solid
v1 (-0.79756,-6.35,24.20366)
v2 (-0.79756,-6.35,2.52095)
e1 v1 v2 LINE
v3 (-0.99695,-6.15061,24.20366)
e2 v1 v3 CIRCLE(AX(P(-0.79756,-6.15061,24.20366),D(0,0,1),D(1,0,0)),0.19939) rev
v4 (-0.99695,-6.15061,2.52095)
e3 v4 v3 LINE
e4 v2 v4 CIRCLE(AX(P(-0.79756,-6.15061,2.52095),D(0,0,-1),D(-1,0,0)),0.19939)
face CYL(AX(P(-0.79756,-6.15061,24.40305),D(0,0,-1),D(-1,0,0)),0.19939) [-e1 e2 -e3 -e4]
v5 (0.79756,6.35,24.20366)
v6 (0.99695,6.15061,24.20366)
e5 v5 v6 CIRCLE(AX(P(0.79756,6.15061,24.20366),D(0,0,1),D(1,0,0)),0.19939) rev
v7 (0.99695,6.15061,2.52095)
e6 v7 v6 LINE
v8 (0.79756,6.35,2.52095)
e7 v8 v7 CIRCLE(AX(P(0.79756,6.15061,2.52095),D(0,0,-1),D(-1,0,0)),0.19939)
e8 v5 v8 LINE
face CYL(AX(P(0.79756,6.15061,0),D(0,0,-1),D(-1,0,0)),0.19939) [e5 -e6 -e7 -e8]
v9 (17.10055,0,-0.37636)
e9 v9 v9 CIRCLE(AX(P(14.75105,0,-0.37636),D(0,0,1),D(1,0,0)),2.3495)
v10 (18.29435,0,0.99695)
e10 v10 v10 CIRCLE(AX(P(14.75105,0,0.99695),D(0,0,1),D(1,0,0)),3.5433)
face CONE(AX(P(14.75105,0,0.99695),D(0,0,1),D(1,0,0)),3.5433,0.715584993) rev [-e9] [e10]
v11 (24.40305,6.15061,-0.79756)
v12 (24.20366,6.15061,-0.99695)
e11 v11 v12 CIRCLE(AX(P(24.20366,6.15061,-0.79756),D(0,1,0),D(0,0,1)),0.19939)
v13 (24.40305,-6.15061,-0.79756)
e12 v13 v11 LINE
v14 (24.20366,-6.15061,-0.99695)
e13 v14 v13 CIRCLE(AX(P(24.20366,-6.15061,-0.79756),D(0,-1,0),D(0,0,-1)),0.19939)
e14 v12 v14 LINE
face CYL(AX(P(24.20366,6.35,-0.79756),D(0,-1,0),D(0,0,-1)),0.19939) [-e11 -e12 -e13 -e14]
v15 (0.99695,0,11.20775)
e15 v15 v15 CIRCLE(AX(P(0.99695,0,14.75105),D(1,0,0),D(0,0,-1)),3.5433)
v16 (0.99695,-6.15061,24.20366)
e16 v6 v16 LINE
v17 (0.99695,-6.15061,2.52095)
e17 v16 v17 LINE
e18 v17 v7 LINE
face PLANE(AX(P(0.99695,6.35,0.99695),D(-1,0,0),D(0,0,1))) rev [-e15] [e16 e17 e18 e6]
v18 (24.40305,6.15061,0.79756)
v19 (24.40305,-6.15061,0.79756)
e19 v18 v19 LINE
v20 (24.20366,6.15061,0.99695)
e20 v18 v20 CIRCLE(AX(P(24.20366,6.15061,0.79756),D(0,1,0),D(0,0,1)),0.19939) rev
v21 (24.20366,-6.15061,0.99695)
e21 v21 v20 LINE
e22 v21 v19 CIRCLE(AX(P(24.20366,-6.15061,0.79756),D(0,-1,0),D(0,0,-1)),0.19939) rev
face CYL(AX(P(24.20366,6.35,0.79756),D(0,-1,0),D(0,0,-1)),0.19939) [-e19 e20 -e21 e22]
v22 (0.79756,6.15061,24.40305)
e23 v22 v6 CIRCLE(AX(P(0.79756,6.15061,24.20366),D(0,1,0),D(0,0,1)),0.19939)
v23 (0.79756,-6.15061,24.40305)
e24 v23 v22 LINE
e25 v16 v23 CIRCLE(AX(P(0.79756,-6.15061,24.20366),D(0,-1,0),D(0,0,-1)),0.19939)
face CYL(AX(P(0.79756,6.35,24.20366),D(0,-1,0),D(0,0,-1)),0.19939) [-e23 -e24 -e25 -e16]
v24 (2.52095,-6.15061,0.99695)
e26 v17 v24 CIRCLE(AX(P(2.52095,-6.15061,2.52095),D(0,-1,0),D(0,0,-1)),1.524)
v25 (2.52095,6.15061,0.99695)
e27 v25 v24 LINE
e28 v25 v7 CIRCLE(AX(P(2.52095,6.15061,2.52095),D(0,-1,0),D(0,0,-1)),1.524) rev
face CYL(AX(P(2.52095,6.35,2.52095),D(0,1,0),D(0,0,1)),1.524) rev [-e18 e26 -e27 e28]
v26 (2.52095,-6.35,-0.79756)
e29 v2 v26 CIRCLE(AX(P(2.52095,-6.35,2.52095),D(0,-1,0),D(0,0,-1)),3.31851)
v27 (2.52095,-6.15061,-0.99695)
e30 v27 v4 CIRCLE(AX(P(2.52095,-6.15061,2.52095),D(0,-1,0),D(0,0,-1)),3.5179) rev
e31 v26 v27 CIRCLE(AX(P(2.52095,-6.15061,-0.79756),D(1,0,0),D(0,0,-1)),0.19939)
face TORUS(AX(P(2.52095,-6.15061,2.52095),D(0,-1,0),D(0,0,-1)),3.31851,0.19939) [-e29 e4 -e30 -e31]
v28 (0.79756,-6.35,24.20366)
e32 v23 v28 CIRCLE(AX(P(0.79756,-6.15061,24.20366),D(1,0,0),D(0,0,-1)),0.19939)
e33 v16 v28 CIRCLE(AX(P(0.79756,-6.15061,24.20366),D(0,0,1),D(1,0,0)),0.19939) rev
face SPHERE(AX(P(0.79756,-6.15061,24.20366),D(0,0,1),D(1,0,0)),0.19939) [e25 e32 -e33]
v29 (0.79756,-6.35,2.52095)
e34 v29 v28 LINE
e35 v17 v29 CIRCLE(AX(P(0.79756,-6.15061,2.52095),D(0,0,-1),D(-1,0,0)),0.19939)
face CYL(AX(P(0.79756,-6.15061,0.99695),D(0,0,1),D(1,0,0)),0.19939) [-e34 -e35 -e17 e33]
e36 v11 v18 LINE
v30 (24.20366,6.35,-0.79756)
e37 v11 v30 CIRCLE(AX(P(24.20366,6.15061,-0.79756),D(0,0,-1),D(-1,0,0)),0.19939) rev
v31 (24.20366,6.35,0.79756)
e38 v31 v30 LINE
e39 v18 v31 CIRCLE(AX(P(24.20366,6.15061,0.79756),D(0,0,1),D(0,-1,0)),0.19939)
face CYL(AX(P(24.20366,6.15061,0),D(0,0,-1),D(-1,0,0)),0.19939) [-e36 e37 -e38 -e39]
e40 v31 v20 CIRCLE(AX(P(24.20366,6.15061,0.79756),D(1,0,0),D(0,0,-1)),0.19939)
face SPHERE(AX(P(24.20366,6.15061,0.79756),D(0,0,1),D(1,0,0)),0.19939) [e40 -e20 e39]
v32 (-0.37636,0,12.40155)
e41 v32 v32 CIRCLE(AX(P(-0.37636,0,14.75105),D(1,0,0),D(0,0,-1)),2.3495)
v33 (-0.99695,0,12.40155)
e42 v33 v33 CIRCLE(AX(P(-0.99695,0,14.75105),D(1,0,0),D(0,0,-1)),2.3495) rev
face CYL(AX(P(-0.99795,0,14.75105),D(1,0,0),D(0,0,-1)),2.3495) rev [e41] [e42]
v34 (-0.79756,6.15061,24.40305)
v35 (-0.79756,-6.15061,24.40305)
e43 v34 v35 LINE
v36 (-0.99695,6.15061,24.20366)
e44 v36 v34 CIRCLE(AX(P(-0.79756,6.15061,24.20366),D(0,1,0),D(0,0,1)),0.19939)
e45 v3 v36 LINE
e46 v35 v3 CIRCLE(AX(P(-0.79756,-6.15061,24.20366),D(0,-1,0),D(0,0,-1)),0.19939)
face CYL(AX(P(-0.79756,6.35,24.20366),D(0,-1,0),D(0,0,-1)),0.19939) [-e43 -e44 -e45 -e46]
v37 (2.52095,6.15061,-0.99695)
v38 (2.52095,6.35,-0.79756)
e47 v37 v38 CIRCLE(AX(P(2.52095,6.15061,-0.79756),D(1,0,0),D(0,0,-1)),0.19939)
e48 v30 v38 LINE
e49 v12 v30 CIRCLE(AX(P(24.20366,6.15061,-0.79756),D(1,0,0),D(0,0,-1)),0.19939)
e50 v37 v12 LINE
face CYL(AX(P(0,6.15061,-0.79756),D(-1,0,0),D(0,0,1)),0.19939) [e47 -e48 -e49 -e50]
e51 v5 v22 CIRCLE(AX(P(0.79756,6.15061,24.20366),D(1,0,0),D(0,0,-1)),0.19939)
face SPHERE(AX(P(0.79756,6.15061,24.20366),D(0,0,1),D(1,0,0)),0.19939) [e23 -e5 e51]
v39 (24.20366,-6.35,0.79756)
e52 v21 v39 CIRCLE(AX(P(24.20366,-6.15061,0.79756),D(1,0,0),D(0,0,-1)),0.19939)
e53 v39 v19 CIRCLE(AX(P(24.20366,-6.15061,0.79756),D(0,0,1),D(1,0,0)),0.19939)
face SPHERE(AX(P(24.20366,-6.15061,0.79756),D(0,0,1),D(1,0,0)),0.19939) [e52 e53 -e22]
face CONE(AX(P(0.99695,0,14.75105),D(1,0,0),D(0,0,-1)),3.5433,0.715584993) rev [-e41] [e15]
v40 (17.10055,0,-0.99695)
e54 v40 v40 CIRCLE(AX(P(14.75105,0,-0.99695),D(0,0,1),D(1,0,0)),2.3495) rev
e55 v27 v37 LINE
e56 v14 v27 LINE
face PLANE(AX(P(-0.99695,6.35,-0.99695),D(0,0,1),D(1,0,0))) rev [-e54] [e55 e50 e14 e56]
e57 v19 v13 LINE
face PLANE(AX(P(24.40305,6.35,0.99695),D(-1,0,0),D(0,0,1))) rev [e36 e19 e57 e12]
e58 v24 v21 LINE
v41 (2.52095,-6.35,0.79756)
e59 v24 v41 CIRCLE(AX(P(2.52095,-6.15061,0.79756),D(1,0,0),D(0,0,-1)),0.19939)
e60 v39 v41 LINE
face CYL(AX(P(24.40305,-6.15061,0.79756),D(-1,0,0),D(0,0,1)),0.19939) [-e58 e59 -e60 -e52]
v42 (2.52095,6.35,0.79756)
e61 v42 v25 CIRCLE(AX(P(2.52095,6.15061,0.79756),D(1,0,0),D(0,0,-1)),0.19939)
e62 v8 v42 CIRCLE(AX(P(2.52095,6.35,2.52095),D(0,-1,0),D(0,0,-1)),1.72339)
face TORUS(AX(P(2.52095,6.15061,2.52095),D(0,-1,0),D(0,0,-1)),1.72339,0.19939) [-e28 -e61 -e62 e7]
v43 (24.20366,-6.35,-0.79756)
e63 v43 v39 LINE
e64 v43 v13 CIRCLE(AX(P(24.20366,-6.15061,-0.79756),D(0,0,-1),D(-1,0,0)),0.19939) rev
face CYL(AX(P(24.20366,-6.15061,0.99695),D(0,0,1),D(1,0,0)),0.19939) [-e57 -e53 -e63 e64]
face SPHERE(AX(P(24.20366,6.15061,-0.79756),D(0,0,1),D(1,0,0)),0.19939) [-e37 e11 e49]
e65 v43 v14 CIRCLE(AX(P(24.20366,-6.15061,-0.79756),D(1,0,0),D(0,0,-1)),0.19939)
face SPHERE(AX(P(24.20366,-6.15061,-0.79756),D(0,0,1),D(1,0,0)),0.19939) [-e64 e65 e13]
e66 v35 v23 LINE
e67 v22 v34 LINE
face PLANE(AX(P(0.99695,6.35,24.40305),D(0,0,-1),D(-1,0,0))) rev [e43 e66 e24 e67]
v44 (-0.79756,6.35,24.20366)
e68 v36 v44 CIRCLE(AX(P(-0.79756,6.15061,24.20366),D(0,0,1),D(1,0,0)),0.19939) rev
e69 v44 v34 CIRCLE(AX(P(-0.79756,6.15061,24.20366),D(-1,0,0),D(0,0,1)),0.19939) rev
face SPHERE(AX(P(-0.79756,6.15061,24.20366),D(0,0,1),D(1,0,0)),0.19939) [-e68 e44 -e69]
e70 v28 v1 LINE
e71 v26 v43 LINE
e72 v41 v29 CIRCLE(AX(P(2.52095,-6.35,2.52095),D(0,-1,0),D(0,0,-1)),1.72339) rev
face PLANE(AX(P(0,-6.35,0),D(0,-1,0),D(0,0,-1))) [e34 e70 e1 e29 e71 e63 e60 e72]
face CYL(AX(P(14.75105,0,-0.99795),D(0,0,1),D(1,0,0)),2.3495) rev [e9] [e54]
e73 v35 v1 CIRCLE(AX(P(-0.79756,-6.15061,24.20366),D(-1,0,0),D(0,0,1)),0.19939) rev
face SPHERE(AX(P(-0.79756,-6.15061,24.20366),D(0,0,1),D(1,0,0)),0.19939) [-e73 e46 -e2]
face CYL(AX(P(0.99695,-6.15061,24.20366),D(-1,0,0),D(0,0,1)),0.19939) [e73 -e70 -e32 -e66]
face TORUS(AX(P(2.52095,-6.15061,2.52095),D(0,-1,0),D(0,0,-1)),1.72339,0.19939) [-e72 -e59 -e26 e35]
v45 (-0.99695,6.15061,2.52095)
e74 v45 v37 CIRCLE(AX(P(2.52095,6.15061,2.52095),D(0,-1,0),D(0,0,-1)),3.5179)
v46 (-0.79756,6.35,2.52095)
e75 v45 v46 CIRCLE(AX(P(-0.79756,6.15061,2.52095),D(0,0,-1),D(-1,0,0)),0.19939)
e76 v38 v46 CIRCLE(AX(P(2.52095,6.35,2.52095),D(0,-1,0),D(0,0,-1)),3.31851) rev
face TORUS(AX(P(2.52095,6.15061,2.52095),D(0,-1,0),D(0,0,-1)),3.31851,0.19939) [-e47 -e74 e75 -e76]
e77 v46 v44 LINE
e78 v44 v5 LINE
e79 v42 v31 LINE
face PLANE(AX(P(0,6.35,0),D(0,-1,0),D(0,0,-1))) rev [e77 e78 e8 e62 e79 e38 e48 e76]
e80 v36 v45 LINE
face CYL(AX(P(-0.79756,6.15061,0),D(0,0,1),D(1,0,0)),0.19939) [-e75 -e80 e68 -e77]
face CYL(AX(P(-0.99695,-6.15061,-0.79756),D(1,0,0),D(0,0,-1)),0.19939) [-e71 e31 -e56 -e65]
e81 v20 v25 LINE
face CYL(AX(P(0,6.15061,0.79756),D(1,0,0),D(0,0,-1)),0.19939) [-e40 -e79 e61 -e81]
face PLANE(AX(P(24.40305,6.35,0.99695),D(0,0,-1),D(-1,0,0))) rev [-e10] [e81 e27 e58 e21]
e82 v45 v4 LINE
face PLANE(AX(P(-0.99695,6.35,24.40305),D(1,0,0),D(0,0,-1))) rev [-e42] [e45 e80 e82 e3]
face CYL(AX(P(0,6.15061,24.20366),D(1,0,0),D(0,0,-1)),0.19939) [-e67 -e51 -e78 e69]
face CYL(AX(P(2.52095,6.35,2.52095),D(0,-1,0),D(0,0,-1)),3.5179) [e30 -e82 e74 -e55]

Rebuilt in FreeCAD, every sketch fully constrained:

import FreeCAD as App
import Part
import Sketcher

V = App.Vector
Q = App.Units.Quantity


def edges_at(feature, points):
    """Names of the edges that pass closest to the given points."""
    edges = feature.Shape.Edges
    near = lambda p: min(range(len(edges)), key=lambda i: edges[i].distToShape(Part.Vertex(*p))[0])
    return sorted({f"Edge{near(p) + 1}" for p in points})


def add_polygon(sketch, points):
    """Adds a closed chain of lines whose ends are joined by coincident constraints."""
    first, n = sketch.GeometryCount, len(points)
    for a, b in zip(points, points[1:] + points[:1]):
        sketch.addGeometry(Part.LineSegment(App.Vector(*a, 0), App.Vector(*b, 0)), False)
    for i in range(n):
        sketch.addConstraint(Sketcher.Constraint("Coincident", first + i, 2, first + (i + 1) % n, 1))

doc = App.newDocument("Part")
body = doc.addObject("PartDesign::Body", "Body")

sketch1 = doc.addObject("Sketcher::SketchObject", "Sketch")
body.addObject(sketch1)
sketch1.AttachmentSupport = (doc.XZ_Plane, [""])
sketch1.MapMode = "FlatFace"
add_polygon(sketch1, [(-1, 24.4), (1, 24.4), (1, 1), (24.4, 1), (24.4, -1), (-1, -1)])
sketch1.addConstraint(Sketcher.Constraint("Horizontal", 0))
sketch1.addConstraint(Sketcher.Constraint("Vertical", 1))
sketch1.addConstraint(Sketcher.Constraint("Horizontal", 2))
sketch1.addConstraint(Sketcher.Constraint("Vertical", 3))
sketch1.addConstraint(Sketcher.Constraint("Horizontal", 4))
sketch1.addConstraint(Sketcher.Constraint("Vertical", 5))
sketch1.addConstraint(Sketcher.Constraint("Symmetric", 1, 2, 4, 2, -1, 1))
sketch1.addConstraint(Sketcher.Constraint("Equal", 2, 1))
sketch1.addConstraint(Sketcher.Constraint("Equal", 0, 3))
sketch1.addConstraint(Sketcher.Constraint("DistanceX", 4, 2, 4, 1, Q("1 in")))
sketch1.addConstraint(Sketcher.Constraint("DistanceX", 0, 1, 0, 2, Q("0.0785 in")))
pad1 = doc.addObject("PartDesign::Pad", "Pad")
body.addObject(pad1)
pad1.Profile = sketch1
pad1.Length = Q("0.5 in")
pad1.Midplane = True
doc.recompute()

fillet = doc.addObject("PartDesign::Fillet", "Fillet")
body.addObject(fillet)
fillet.Base = (pad1, edges_at(pad1, [(0.997, 0, 0.997)]))
fillet.Radius = Q("0.06 in")
doc.recompute()

fillet2 = doc.addObject("PartDesign::Fillet", "Fillet001")
body.addObject(fillet2)
fillet2.Base = (fillet, edges_at(fillet, [(-0.997, 0, -0.997)]))
fillet2.Radius = Q("0.1385 in")

sketch2 = doc.addObject("Sketcher::SketchObject", "Sketch001")
body.addObject(sketch2)
sketch2.AttachmentSupport = (doc.XY_Plane, [""])
sketch2.MapMode = "FlatFace"
sketch2.AttachmentOffset = App.Placement(V(0, 0, 0.99695), App.Rotation())
sketch2.addGeometry(Part.Circle(V(14.8, 0, 0), V(0, 0, 1), 2.3), False)
sketch2.addConstraint(Sketcher.Constraint("PointOnObject", 0, 3, -1))
sketch2.addConstraint(Sketcher.Constraint("Diameter", 0, Q("0.185 in")))
sketch2.addConstraint(Sketcher.Constraint("DistanceX", -1, 1, 0, 3, Q("14.75105 mm")))
pocket1 = doc.addObject("PartDesign::Pocket", "Pocket")
body.addObject(pocket1)
pocket1.Profile = sketch2
pocket1.Type = "UpToFirst"

sketch3 = doc.addObject("Sketcher::SketchObject", "Sketch002")
body.addObject(sketch3)
sketch3.AttachmentSupport = (doc.YZ_Plane, [""])
sketch3.MapMode = "FlatFace"
sketch3.AttachmentOffset = App.Placement(V(0, 0, 14.75105), App.Rotation())
add_polygon(sketch3, [(0, 1), (-3.5, 1), (0, -3.1)])
sketch3.addConstraint(Sketcher.Constraint("Horizontal", 0))
sketch3.addConstraint(Sketcher.Constraint("Vertical", 2))
sketch3.addConstraint(Sketcher.Constraint("PointOnObject", 1, 2, -2))
sketch3.addConstraint(Sketcher.Constraint("Angle", 1, Q("-49 deg")))
sketch3.addConstraint(Sketcher.Constraint("DistanceX", 0, 2, 0, 1, Q("0.1395 in")))
sketch3.addConstraint(Sketcher.Constraint("DistanceY", -1, 1, 0, 2, Q("0.99695 mm")))
groove = doc.addObject("PartDesign::Groove", "Groove")
body.addObject(groove)
groove.Profile = sketch3
groove.ReferenceAxis = (sketch3, ["V_Axis"])
groove.Angle = 360

sketch4 = doc.addObject("Sketcher::SketchObject", "Sketch003")
body.addObject(sketch4)
sketch4.AttachmentSupport = (doc.YZ_Plane, [""])
sketch4.MapMode = "FlatFace"
sketch4.AttachmentOffset = App.Placement(V(0, 0, 0.99695), App.Rotation())
sketch4.addGeometry(Part.Circle(V(0, 14.8, 0), V(0, 0, 1), 2.3), False)
sketch4.addConstraint(Sketcher.Constraint("PointOnObject", 0, 3, -2))
sketch4.addConstraint(Sketcher.Constraint("Diameter", 0, Q("0.185 in")))
sketch4.addConstraint(Sketcher.Constraint("DistanceY", -1, 1, 0, 3, Q("14.75105 mm")))
pocket2 = doc.addObject("PartDesign::Pocket", "Pocket001")
body.addObject(pocket2)
pocket2.Profile = sketch4
pocket2.Type = "UpToFirst"

sketch5 = doc.addObject("Sketcher::SketchObject", "Sketch004")
body.addObject(sketch5)
sketch5.AttachmentSupport = (doc.XZ_Plane, [""])
sketch5.MapMode = "FlatFace"
add_polygon(sketch5, [(1, 14.8), (1, 11.2), (-3.1, 14.8)])
sketch5.addGeometry(Part.LineSegment(V(1, 14.8, 0), V(-3.1, 14.8, 0)), True)
sketch5.addConstraint(Sketcher.Constraint("Vertical", 0))
sketch5.addConstraint(Sketcher.Constraint("Horizontal", 2))
sketch5.addConstraint(Sketcher.Constraint("Horizontal", 3))
sketch5.addConstraint(Sketcher.Constraint("Coincident", 3, 1, 2, 2))
sketch5.addConstraint(Sketcher.Constraint("Equal", 2, 3))
sketch5.addConstraint(Sketcher.Constraint("Angle", 1, Q("139 deg")))
sketch5.addConstraint(Sketcher.Constraint("DistanceY", 0, 2, 0, 1, Q("0.1395 in")))
sketch5.addConstraint(Sketcher.Constraint("DistanceX", -1, 1, 0, 2, Q("0.99695 mm")))
sketch5.addConstraint(Sketcher.Constraint("DistanceY", -1, 1, 0, 2, Q("11.20775 mm")))
groove2 = doc.addObject("PartDesign::Groove", "Groove001")
body.addObject(groove2)
groove2.Profile = sketch5
groove2.ReferenceAxis = (sketch5, ["Axis0"])
groove2.Angle = 360
doc.recompute()

fillet3 = doc.addObject("PartDesign::Fillet", "Fillet002")
body.addObject(fillet3)
fillet3.Base = (groove2, edges_at(groove2, [
    (0.997, 6.35, 13.462),
    (24.403, 0, -0.997),
    (24.403, 0, 0.997),
    (0.997, 0, 24.403),
    (-0.997, 0, 24.403),
    (24.403, 6.35, 0),
    (13.462, -6.35, 0.997),
    (13.462, 6.35, 0.997),
    (13.462, 6.35, -0.997),
    (1.443, -6.35, 1.443),
    (1.443, 6.35, 1.443),
    (-0.997, -6.35, 13.462),
    (-0.997, 6.35, 13.462),
    (0.033, -6.35, 0.033),
    (0.033, 6.35, 0.033),
    (13.462, -6.35, -0.997),
    (24.403, -6.35, 0),
    (0, 6.35, 24.403),
    (0.997, -6.35, 13.462),
    (0, -6.35, 24.403),
]))
fillet3.Radius = 0.19939

doc.recompute()
